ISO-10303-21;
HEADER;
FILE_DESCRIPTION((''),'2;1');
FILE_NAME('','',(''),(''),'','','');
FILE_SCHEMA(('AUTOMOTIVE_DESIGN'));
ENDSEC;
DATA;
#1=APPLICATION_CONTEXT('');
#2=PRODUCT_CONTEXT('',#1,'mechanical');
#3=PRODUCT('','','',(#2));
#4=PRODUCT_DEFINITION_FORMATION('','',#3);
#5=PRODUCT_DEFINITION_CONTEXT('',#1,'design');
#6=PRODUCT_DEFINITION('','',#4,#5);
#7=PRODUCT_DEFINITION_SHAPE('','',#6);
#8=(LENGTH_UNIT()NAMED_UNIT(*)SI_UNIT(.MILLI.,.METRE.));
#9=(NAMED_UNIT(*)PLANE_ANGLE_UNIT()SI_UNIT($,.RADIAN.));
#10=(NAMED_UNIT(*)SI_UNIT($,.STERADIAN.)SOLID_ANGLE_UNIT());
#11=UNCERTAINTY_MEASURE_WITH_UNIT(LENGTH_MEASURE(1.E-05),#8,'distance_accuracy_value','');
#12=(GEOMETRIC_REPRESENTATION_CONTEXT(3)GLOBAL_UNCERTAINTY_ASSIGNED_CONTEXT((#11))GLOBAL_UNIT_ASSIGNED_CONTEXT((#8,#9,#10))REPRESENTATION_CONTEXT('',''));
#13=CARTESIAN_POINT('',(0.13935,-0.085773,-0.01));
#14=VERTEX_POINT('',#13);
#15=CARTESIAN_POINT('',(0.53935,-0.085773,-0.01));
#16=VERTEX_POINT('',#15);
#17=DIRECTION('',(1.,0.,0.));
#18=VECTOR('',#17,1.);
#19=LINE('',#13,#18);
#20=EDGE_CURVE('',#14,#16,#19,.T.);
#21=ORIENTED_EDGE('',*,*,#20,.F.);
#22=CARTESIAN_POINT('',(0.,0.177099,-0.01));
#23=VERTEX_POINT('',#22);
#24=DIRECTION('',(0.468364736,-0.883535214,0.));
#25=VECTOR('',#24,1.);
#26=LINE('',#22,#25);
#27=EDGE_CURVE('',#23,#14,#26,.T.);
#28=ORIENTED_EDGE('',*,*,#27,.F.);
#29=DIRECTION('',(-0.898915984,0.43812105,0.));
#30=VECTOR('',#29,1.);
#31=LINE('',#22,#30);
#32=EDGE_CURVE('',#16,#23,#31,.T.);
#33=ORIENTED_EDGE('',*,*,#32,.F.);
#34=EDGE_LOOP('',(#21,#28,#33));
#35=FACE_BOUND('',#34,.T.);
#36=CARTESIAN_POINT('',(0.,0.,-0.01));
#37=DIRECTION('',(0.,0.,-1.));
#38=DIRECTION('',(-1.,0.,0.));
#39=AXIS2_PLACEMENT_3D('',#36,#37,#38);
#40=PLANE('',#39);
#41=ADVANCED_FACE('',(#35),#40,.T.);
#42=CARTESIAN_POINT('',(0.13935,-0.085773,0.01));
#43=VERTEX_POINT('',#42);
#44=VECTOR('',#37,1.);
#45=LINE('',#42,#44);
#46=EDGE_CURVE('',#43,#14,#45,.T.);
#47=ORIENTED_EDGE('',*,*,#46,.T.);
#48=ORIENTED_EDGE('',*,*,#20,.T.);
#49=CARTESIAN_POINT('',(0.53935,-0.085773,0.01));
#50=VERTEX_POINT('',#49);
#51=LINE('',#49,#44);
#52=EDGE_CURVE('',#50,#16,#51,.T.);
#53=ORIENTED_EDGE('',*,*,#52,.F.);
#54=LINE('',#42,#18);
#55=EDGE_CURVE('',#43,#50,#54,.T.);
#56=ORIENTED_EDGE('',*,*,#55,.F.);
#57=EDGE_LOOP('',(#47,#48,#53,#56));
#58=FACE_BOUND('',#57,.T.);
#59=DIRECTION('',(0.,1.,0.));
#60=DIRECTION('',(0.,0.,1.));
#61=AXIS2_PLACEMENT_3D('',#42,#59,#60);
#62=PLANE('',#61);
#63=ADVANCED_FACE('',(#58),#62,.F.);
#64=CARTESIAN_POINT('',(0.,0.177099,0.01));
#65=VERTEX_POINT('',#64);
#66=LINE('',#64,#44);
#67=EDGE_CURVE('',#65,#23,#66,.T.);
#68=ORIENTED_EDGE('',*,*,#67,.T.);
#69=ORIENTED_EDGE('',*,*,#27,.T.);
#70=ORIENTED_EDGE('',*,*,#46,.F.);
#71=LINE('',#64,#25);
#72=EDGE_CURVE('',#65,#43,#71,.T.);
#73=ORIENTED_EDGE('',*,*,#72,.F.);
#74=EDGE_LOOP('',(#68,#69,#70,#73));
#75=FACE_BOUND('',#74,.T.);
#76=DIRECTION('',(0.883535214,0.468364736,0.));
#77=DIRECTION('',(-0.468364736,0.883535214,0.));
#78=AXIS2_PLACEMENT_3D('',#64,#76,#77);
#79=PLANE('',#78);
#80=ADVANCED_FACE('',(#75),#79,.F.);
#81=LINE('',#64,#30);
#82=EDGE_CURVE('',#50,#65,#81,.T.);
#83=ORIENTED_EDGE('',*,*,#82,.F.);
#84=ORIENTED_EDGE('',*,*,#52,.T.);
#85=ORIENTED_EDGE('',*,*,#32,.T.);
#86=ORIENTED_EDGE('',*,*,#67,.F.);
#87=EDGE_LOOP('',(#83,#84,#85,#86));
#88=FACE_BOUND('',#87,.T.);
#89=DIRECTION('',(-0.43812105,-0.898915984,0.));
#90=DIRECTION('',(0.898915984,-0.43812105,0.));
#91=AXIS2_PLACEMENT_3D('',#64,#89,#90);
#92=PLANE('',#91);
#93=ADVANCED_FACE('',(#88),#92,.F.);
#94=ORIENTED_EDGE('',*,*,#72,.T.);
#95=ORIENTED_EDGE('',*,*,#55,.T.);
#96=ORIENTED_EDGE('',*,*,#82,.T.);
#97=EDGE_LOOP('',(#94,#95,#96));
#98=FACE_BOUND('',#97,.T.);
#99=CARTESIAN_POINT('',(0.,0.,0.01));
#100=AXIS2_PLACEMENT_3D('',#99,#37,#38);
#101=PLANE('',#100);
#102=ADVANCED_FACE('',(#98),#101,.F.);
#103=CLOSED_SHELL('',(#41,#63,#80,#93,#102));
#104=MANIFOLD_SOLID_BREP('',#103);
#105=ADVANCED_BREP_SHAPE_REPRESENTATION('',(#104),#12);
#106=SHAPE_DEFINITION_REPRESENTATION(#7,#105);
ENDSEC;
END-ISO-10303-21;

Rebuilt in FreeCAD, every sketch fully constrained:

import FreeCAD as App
import Part
import Sketcher

doc = App.newDocument("Part")
body = doc.addObject("PartDesign::Body", "Body")

# Sketch on XY plane
sketch1 = doc.addObject("Sketcher::SketchObject", "Sketch")
body.addObject(sketch1)
sketch1.AttachmentSupport = (doc.XY_Plane, [""])
sketch1.MapMode = "FlatFace"
sketch1.addGeometry(Part.LineSegment(App.Vector(0, 0.18, 0), App.Vector(0.14, -0.09, 0)), False)
sketch1.addGeometry(Part.LineSegment(App.Vector(0.14, -0.09, 0), App.Vector(0.54, -0.09, 0)), False)
sketch1.addGeometry(Part.LineSegment(App.Vector(0.54, -0.09, 0), App.Vector(0, 0.18, 0)), False)
sketch1.addConstraint(Sketcher.Constraint("Coincident", 0, 2, 1, 1))
sketch1.addConstraint(Sketcher.Constraint("Coincident", 1, 2, 2, 1))
sketch1.addConstraint(Sketcher.Constraint("Coincident", 2, 2, 0, 1))
sketch1.addConstraint(Sketcher.Constraint("Horizontal", 1))
sketch1.addConstraint(Sketcher.Constraint("PointOnObject", 2, 2, -2))
sketch1.addConstraint(Sketcher.Constraint("DistanceX", 1, 1, 1, 2, 0.4))
sketch1.addConstraint(Sketcher.Constraint("Distance", 2, 0.6))
sketch1.addConstraint(Sketcher.Constraint("DistanceY", -1, 1, 2, 2, 0.177099))
sketch1.addConstraint(Sketcher.Constraint("DistanceX", -1, 1, 0, 2, 0.13935))
pad1 = doc.addObject("PartDesign::Pad", "Pad")
body.addObject(pad1)
pad1.Profile = sketch1
pad1.Length = 0.02
pad1.Midplane = True

doc.recompute()
